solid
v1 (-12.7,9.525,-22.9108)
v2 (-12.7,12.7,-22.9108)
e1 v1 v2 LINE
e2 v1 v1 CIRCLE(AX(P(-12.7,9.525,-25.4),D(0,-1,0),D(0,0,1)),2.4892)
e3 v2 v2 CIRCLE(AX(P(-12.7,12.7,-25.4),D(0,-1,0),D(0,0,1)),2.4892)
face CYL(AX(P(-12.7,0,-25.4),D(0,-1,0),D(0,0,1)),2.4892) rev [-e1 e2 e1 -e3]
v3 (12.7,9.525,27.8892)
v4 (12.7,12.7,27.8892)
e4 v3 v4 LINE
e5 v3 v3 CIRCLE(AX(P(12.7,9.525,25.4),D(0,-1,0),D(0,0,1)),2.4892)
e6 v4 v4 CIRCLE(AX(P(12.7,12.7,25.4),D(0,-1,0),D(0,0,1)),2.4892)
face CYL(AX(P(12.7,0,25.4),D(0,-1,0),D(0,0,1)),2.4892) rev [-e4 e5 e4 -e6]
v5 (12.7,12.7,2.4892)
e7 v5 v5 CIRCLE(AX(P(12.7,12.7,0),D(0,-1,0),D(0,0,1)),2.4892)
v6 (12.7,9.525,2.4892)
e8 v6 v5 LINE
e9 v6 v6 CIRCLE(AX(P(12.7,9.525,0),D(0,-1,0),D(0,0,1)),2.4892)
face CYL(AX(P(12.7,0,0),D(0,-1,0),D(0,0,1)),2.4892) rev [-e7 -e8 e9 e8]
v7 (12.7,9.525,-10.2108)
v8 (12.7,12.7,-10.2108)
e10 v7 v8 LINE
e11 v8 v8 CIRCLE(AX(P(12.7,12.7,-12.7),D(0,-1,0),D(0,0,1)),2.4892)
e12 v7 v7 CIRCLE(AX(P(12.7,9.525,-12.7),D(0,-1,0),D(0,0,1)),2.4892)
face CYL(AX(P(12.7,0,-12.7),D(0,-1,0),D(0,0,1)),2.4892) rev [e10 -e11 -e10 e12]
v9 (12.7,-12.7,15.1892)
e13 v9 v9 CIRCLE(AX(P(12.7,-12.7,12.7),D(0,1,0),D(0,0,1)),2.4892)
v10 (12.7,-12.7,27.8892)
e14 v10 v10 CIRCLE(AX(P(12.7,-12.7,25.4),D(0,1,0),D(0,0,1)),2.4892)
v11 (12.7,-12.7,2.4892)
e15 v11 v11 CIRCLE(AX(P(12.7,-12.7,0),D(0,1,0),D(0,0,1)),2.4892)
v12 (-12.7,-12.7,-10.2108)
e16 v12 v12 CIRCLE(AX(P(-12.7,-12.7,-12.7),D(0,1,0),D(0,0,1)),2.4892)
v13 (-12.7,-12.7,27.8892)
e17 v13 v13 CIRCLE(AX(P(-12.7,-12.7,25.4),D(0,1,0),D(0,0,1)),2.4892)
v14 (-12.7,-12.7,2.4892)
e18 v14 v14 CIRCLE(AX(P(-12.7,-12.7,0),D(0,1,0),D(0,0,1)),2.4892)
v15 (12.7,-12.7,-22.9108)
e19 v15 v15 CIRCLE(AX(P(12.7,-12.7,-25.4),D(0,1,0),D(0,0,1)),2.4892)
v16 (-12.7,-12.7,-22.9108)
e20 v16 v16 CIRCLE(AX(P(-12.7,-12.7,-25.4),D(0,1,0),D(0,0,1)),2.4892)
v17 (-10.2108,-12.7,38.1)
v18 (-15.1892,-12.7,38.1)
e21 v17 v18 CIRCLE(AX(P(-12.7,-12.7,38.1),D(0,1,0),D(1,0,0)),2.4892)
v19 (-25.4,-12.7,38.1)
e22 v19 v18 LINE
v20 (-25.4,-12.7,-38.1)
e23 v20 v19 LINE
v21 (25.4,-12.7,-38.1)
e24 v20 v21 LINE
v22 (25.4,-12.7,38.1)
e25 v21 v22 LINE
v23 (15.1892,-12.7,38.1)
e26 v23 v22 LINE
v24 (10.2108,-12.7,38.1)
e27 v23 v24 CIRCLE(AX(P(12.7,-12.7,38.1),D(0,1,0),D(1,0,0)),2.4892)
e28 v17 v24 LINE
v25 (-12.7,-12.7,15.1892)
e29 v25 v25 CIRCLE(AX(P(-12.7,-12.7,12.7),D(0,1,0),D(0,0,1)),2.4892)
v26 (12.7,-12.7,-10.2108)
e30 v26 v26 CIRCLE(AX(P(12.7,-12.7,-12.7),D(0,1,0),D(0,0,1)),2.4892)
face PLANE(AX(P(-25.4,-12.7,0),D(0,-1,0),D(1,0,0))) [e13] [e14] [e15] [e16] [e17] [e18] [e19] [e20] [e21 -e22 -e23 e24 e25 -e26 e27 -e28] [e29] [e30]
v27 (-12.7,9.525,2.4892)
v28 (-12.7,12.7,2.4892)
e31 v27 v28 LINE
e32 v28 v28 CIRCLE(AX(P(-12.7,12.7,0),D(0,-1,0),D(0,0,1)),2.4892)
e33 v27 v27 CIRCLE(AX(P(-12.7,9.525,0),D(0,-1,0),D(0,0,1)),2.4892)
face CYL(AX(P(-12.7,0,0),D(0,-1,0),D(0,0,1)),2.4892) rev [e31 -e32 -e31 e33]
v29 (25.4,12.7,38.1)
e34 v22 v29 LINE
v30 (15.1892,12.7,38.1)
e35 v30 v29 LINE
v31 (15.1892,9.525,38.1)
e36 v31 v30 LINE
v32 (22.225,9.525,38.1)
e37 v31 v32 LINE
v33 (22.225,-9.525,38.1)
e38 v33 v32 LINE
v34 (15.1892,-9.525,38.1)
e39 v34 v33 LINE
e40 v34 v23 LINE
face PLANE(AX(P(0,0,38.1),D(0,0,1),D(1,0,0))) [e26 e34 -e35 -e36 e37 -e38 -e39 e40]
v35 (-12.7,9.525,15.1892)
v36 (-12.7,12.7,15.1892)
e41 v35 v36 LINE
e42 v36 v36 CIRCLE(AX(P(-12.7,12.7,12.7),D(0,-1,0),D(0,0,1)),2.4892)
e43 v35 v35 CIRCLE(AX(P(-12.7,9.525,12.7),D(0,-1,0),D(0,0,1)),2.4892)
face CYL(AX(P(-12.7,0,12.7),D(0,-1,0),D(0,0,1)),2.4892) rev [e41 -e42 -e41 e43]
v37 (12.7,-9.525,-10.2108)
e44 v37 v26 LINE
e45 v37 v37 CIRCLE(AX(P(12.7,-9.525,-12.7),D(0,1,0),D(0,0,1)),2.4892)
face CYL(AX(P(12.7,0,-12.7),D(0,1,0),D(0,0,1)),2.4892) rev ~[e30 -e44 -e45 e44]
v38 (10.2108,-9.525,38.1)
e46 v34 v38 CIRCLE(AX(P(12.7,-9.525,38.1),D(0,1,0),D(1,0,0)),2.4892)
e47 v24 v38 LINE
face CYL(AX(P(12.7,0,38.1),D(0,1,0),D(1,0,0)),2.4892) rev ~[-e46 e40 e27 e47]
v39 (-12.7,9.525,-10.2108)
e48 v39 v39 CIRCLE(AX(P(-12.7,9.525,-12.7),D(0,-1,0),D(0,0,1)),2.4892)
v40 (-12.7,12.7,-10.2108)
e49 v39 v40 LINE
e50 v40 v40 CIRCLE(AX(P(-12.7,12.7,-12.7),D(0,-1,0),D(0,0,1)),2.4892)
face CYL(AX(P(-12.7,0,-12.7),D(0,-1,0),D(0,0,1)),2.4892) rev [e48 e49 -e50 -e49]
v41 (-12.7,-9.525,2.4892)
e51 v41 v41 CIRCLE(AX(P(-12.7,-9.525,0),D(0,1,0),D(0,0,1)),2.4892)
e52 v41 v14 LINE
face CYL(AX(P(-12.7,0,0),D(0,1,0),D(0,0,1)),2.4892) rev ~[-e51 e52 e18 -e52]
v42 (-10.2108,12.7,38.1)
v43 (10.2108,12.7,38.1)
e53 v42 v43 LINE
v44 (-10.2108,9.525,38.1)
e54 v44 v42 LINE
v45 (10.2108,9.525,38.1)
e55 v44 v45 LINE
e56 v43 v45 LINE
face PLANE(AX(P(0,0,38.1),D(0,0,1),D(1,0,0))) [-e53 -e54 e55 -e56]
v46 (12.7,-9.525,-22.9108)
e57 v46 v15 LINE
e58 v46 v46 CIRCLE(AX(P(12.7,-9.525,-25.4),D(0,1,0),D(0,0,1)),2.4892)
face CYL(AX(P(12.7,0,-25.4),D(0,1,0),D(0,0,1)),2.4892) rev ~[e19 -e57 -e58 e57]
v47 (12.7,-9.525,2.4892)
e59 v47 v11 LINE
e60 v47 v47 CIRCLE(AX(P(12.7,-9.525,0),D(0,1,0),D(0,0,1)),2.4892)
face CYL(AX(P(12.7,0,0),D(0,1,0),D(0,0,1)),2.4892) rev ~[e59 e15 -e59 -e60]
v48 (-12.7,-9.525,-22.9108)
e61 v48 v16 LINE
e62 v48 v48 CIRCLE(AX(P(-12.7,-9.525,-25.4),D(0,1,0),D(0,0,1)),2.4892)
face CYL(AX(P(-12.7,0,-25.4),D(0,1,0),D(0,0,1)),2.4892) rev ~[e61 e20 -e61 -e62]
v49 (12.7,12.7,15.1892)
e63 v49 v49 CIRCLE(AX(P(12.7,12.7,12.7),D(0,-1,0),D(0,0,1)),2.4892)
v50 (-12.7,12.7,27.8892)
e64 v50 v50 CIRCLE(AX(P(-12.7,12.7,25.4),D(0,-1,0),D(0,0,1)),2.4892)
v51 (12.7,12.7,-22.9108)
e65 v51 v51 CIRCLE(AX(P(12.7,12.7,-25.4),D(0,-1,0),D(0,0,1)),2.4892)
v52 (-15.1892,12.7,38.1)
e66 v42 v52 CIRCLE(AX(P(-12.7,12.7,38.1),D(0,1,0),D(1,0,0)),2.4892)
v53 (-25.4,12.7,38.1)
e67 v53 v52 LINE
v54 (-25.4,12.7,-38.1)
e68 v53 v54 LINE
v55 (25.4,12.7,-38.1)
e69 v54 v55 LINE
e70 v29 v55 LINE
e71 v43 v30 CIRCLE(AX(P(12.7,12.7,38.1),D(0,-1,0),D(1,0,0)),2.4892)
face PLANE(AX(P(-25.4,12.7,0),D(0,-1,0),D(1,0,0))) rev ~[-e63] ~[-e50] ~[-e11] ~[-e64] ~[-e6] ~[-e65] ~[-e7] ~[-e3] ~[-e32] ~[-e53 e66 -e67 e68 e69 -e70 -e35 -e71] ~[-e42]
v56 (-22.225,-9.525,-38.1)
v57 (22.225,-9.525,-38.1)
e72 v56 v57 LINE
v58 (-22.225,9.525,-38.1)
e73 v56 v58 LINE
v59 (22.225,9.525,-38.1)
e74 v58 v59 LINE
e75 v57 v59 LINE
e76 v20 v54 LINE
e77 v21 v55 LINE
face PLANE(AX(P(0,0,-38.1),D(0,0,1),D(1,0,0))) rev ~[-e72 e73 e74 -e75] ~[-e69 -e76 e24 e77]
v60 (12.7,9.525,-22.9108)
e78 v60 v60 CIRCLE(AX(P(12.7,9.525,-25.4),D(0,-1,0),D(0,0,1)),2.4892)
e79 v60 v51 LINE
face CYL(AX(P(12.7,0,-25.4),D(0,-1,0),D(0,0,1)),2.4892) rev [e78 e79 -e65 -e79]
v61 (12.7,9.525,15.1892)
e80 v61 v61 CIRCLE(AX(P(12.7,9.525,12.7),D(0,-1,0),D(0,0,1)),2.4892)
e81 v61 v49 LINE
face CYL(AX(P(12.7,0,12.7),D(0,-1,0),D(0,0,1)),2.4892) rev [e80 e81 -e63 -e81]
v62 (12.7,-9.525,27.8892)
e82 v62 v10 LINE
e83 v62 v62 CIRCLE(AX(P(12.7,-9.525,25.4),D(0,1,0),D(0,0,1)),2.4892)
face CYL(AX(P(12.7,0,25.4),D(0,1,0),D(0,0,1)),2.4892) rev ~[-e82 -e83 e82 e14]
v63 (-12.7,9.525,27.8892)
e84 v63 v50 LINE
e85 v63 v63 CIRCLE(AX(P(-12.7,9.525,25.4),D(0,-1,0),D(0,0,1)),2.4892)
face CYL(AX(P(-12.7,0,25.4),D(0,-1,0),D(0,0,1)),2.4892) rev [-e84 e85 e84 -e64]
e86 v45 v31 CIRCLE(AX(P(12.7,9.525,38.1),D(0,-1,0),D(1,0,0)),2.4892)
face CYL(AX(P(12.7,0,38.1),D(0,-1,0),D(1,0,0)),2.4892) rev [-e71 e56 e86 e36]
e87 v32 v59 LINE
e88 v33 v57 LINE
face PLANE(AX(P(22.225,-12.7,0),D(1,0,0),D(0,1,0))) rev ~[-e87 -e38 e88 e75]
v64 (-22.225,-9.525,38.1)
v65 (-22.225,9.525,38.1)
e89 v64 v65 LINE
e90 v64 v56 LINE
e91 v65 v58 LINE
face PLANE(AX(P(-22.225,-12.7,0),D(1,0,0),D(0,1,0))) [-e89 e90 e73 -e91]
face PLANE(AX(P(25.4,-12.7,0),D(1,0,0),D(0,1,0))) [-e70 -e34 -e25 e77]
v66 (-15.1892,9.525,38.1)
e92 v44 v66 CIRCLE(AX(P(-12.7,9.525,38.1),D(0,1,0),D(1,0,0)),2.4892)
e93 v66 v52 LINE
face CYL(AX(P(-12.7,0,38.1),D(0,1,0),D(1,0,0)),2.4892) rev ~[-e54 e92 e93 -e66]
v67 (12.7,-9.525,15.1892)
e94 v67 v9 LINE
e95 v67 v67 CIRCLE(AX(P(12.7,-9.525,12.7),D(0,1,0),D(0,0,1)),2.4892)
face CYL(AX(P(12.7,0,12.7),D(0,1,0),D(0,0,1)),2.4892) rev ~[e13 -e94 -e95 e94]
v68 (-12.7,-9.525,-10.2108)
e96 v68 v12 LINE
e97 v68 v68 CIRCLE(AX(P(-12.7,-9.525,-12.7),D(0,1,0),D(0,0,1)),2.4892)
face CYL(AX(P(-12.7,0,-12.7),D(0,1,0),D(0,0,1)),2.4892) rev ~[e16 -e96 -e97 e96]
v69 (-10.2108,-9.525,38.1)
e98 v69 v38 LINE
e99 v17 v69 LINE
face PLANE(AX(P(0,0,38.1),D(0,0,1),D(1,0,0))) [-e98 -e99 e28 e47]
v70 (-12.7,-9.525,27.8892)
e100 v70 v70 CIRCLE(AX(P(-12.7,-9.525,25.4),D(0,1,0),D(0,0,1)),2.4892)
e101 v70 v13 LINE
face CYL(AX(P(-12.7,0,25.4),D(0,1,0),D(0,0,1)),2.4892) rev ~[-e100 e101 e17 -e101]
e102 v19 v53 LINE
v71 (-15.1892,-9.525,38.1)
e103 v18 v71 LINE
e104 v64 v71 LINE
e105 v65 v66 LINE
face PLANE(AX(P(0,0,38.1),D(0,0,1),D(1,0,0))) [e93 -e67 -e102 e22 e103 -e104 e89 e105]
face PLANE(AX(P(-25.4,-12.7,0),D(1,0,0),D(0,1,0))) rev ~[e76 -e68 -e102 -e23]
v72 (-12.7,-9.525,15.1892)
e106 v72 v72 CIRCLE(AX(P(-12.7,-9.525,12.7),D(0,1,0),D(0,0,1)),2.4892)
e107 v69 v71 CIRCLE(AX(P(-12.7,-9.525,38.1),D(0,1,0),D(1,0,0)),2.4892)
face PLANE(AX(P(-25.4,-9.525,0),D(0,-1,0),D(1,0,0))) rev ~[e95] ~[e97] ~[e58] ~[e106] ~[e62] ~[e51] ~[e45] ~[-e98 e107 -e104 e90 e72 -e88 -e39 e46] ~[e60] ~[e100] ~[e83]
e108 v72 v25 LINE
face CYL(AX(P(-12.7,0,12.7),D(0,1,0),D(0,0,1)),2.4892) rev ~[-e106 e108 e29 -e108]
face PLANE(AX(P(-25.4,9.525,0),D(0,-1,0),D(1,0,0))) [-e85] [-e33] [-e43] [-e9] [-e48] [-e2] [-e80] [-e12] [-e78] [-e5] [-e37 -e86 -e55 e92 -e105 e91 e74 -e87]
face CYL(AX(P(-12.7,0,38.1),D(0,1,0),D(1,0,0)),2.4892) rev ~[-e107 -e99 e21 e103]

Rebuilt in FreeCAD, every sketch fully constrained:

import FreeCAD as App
import Part
import Sketcher
Q = App.Units.Quantity


def faces_at(feature, points):
    """Names of the faces that lie closest to the given points."""
    faces = feature.Shape.Faces
    near = lambda p: min(range(len(faces)), key=lambda i: faces[i].distToShape(Part.Vertex(*p))[0])
    return sorted({f"Face{near(p) + 1}" for p in points})


def add_polygon(sketch, points):
    """Adds a closed chain of lines whose ends are joined by coincident constraints."""
    first, n = sketch.GeometryCount, len(points)
    for a, b in zip(points, points[1:] + points[:1]):
        sketch.addGeometry(Part.LineSegment(App.Vector(*a, 0), App.Vector(*b, 0)), False)
    for i in range(n):
        sketch.addConstraint(Sketcher.Constraint("Coincident", first + i, 2, first + (i + 1) % n, 1))

doc = App.newDocument("Part")
params = doc.addObject("Spreadsheet::Sheet", "Params")
for row, (alias, value) in enumerate([
    ("sketch1_width", "2 in"),
    ("sketch1_height", "1 in"),
    ("pad1_length", "3 in"),
    ("thickness_wall", "0.125 in"),
    ("sketch2_diameter", "0.196 in"),
    ("pocket1_length", "5 in"),
], start=1):
    params.set(f"A{row}", alias)
    params.set(f"B{row}", "=" + value)
    params.setAlias(f"B{row}", alias)

body = doc.addObject("PartDesign::Body", "Body")

# Sketch on XY plane
sketch1 = doc.addObject("Sketcher::SketchObject", "Sketch")
body.addObject(sketch1)
sketch1.AttachmentSupport = (doc.XY_Plane, [""])
sketch1.MapMode = "FlatFace"
add_polygon(sketch1, [(-25.4, 12.7), (-25.4, -12.7), (25.4, -12.7), (25.4, 12.7)])  # lines 0-3
sketch1.addConstraint(Sketcher.Constraint("Vertical", 0))
sketch1.addConstraint(Sketcher.Constraint("Horizontal", 1))
sketch1.addConstraint(Sketcher.Constraint("Vertical", 2))
sketch1.addConstraint(Sketcher.Constraint("Horizontal", 3))
sketch1.addConstraint(Sketcher.Constraint("Symmetric", 0, 2, 2, 2, -1, 1))
sketch1.addConstraint(Sketcher.Constraint("DistanceX", 1, 1, 1, 2, Q("2 in")))
sketch1.addConstraint(Sketcher.Constraint("DistanceY", 0, 2, 0, 1, Q("1 in")))
sketch1.setExpression("Constraints[9]", "Params.sketch1_width")
sketch1.setExpression("Constraints[10]", "Params.sketch1_height")
pad1 = doc.addObject("PartDesign::Pad", "Pad")
body.addObject(pad1)
pad1.Profile = sketch1
pad1.setExpression("Length", "Params.pad1_length")
pad1.Midplane = True
doc.recompute()

thickness = doc.addObject("PartDesign::Thickness", "Thickness")
body.addObject(thickness)
thickness.Base = (pad1, faces_at(pad1, [(0, 0, 38.1), (0, 0, -38.1)]))
thickness.setExpression("Value", "Params.thickness_wall")
thickness.Reversed = True
thickness.Join = "Intersection"

# Sketch on XZ plane
sketch2 = doc.addObject("Sketcher::SketchObject", "Sketch001")
body.addObject(sketch2)
sketch2.AttachmentSupport = (doc.XZ_Plane, [""])
sketch2.MapMode = "FlatFace"
sketch2.addGeometry(Part.Circle(App.Vector(-12.7, -25.4, 0), App.Vector(0, 0, 1), 2.4892), False)
sketch2.addGeometry(Part.Circle(App.Vector(12.7, -25.4, 0), App.Vector(0, 0, 1), 2.4892), False)
sketch2.addGeometry(Part.Circle(App.Vector(12.7, -12.7, 0), App.Vector(0, 0, 1), 2.4892), False)
sketch2.addGeometry(Part.Circle(App.Vector(12.7, 0, 0), App.Vector(0, 0, 1), 2.4892), False)
sketch2.addGeometry(Part.Circle(App.Vector(12.7, 12.7, 0), App.Vector(0, 0, 1), 2.4892), False)
sketch2.addGeometry(Part.Circle(App.Vector(12.7, 25.4, 0), App.Vector(0, 0, 1), 2.4892), False)
sketch2.addGeometry(Part.Circle(App.Vector(12.7, 38.1, 0), App.Vector(0, 0, 1), 2.4892), False)
sketch2.addGeometry(Part.Circle(App.Vector(-12.7, -12.7, 0), App.Vector(0, 0, 1), 2.4892), False)
sketch2.addGeometry(Part.Circle(App.Vector(-12.7, 0, 0), App.Vector(0, 0, 1), 2.4892), False)
sketch2.addGeometry(Part.Circle(App.Vector(-12.7, 12.7, 0), App.Vector(0, 0, 1), 2.4892), False)
sketch2.addGeometry(Part.Circle(App.Vector(-12.7, 25.4, 0), App.Vector(0, 0, 1), 2.4892), False)
sketch2.addGeometry(Part.Circle(App.Vector(-12.7, 38.1, 0), App.Vector(0, 0, 1), 2.4892), False)
sketch2.addConstraint(Sketcher.Constraint("Equal", 0, 1))
sketch2.addConstraint(Sketcher.Constraint("Equal", 1, 2))
sketch2.addConstraint(Sketcher.Constraint("Equal", 2, 3))
sketch2.addConstraint(Sketcher.Constraint("Equal", 3, 4))
sketch2.addConstraint(Sketcher.Constraint("Equal", 4, 5))
sketch2.addConstraint(Sketcher.Constraint("Equal", 5, 6))
sketch2.addConstraint(Sketcher.Constraint("Equal", 6, 7))
sketch2.addConstraint(Sketcher.Constraint("Equal", 7, 8))
sketch2.addConstraint(Sketcher.Constraint("Equal", 8, 9))
sketch2.addConstraint(Sketcher.Constraint("Equal", 9, 10))
sketch2.addConstraint(Sketcher.Constraint("Equal", 10, 11))
sketch2.addConstraint(Sketcher.Constraint("Symmetric", 0, 3, 5, 3, -1, 1))
sketch2.addConstraint(Sketcher.Constraint("Symmetric", 4, 3, 7, 3, -1, 1))
sketch2.addConstraint(Sketcher.Constraint("Symmetric", 3, 3, 8, 3, -1, 1))
sketch2.addConstraint(Sketcher.Constraint("Symmetric", 2, 3, 9, 3, -1, 1))
sketch2.addConstraint(Sketcher.Constraint("Symmetric", 1, 3, 10, 3, -1, 1))
sketch2.addConstraint(Sketcher.Constraint("Symmetric", 0, 3, 1, 3, -2))
sketch2.addConstraint(Sketcher.Constraint("Symmetric", 2, 3, 7, 3, -2))
sketch2.addConstraint(Sketcher.Constraint("Symmetric", 6, 3, 11, 3, -2))
sketch2.addConstraint(Sketcher.Constraint("PointOnObject", 3, 3, -1))
sketch2.addConstraint(Sketcher.Constraint("Vertical", 1, 3, 2, 3))
sketch2.addConstraint(Sketcher.Constraint("Vertical", 2, 3, 3, 3))
sketch2.addConstraint(Sketcher.Constraint("Vertical", 5, 3, 6, 3))
sketch2.addConstraint(Sketcher.Constraint("Diameter", 0, Q("0.196 in")))
sketch2.addConstraint(Sketcher.Constraint("DistanceY", 0, 3, -1, 1, Q("1 in")))
sketch2.addConstraint(Sketcher.Constraint("DistanceX", 0, 3, 1, 3, Q("1 in")))
sketch2.addConstraint(Sketcher.Constraint("DistanceY", 2, 3, 4, 3, Q("1 in")))
sketch2.addConstraint(Sketcher.Constraint("DistanceY", 4, 3, 6, 3, Q("1 in")))
sketch2.setExpression("Constraints[23]", "Params.sketch2_diameter")
pocket1 = doc.addObject("PartDesign::Pocket", "Pocket")
body.addObject(pocket1)
pocket1.Profile = sketch2
pocket1.setExpression("Length", "Params.pocket1_length")
pocket1.Midplane = True

doc.recompute()
